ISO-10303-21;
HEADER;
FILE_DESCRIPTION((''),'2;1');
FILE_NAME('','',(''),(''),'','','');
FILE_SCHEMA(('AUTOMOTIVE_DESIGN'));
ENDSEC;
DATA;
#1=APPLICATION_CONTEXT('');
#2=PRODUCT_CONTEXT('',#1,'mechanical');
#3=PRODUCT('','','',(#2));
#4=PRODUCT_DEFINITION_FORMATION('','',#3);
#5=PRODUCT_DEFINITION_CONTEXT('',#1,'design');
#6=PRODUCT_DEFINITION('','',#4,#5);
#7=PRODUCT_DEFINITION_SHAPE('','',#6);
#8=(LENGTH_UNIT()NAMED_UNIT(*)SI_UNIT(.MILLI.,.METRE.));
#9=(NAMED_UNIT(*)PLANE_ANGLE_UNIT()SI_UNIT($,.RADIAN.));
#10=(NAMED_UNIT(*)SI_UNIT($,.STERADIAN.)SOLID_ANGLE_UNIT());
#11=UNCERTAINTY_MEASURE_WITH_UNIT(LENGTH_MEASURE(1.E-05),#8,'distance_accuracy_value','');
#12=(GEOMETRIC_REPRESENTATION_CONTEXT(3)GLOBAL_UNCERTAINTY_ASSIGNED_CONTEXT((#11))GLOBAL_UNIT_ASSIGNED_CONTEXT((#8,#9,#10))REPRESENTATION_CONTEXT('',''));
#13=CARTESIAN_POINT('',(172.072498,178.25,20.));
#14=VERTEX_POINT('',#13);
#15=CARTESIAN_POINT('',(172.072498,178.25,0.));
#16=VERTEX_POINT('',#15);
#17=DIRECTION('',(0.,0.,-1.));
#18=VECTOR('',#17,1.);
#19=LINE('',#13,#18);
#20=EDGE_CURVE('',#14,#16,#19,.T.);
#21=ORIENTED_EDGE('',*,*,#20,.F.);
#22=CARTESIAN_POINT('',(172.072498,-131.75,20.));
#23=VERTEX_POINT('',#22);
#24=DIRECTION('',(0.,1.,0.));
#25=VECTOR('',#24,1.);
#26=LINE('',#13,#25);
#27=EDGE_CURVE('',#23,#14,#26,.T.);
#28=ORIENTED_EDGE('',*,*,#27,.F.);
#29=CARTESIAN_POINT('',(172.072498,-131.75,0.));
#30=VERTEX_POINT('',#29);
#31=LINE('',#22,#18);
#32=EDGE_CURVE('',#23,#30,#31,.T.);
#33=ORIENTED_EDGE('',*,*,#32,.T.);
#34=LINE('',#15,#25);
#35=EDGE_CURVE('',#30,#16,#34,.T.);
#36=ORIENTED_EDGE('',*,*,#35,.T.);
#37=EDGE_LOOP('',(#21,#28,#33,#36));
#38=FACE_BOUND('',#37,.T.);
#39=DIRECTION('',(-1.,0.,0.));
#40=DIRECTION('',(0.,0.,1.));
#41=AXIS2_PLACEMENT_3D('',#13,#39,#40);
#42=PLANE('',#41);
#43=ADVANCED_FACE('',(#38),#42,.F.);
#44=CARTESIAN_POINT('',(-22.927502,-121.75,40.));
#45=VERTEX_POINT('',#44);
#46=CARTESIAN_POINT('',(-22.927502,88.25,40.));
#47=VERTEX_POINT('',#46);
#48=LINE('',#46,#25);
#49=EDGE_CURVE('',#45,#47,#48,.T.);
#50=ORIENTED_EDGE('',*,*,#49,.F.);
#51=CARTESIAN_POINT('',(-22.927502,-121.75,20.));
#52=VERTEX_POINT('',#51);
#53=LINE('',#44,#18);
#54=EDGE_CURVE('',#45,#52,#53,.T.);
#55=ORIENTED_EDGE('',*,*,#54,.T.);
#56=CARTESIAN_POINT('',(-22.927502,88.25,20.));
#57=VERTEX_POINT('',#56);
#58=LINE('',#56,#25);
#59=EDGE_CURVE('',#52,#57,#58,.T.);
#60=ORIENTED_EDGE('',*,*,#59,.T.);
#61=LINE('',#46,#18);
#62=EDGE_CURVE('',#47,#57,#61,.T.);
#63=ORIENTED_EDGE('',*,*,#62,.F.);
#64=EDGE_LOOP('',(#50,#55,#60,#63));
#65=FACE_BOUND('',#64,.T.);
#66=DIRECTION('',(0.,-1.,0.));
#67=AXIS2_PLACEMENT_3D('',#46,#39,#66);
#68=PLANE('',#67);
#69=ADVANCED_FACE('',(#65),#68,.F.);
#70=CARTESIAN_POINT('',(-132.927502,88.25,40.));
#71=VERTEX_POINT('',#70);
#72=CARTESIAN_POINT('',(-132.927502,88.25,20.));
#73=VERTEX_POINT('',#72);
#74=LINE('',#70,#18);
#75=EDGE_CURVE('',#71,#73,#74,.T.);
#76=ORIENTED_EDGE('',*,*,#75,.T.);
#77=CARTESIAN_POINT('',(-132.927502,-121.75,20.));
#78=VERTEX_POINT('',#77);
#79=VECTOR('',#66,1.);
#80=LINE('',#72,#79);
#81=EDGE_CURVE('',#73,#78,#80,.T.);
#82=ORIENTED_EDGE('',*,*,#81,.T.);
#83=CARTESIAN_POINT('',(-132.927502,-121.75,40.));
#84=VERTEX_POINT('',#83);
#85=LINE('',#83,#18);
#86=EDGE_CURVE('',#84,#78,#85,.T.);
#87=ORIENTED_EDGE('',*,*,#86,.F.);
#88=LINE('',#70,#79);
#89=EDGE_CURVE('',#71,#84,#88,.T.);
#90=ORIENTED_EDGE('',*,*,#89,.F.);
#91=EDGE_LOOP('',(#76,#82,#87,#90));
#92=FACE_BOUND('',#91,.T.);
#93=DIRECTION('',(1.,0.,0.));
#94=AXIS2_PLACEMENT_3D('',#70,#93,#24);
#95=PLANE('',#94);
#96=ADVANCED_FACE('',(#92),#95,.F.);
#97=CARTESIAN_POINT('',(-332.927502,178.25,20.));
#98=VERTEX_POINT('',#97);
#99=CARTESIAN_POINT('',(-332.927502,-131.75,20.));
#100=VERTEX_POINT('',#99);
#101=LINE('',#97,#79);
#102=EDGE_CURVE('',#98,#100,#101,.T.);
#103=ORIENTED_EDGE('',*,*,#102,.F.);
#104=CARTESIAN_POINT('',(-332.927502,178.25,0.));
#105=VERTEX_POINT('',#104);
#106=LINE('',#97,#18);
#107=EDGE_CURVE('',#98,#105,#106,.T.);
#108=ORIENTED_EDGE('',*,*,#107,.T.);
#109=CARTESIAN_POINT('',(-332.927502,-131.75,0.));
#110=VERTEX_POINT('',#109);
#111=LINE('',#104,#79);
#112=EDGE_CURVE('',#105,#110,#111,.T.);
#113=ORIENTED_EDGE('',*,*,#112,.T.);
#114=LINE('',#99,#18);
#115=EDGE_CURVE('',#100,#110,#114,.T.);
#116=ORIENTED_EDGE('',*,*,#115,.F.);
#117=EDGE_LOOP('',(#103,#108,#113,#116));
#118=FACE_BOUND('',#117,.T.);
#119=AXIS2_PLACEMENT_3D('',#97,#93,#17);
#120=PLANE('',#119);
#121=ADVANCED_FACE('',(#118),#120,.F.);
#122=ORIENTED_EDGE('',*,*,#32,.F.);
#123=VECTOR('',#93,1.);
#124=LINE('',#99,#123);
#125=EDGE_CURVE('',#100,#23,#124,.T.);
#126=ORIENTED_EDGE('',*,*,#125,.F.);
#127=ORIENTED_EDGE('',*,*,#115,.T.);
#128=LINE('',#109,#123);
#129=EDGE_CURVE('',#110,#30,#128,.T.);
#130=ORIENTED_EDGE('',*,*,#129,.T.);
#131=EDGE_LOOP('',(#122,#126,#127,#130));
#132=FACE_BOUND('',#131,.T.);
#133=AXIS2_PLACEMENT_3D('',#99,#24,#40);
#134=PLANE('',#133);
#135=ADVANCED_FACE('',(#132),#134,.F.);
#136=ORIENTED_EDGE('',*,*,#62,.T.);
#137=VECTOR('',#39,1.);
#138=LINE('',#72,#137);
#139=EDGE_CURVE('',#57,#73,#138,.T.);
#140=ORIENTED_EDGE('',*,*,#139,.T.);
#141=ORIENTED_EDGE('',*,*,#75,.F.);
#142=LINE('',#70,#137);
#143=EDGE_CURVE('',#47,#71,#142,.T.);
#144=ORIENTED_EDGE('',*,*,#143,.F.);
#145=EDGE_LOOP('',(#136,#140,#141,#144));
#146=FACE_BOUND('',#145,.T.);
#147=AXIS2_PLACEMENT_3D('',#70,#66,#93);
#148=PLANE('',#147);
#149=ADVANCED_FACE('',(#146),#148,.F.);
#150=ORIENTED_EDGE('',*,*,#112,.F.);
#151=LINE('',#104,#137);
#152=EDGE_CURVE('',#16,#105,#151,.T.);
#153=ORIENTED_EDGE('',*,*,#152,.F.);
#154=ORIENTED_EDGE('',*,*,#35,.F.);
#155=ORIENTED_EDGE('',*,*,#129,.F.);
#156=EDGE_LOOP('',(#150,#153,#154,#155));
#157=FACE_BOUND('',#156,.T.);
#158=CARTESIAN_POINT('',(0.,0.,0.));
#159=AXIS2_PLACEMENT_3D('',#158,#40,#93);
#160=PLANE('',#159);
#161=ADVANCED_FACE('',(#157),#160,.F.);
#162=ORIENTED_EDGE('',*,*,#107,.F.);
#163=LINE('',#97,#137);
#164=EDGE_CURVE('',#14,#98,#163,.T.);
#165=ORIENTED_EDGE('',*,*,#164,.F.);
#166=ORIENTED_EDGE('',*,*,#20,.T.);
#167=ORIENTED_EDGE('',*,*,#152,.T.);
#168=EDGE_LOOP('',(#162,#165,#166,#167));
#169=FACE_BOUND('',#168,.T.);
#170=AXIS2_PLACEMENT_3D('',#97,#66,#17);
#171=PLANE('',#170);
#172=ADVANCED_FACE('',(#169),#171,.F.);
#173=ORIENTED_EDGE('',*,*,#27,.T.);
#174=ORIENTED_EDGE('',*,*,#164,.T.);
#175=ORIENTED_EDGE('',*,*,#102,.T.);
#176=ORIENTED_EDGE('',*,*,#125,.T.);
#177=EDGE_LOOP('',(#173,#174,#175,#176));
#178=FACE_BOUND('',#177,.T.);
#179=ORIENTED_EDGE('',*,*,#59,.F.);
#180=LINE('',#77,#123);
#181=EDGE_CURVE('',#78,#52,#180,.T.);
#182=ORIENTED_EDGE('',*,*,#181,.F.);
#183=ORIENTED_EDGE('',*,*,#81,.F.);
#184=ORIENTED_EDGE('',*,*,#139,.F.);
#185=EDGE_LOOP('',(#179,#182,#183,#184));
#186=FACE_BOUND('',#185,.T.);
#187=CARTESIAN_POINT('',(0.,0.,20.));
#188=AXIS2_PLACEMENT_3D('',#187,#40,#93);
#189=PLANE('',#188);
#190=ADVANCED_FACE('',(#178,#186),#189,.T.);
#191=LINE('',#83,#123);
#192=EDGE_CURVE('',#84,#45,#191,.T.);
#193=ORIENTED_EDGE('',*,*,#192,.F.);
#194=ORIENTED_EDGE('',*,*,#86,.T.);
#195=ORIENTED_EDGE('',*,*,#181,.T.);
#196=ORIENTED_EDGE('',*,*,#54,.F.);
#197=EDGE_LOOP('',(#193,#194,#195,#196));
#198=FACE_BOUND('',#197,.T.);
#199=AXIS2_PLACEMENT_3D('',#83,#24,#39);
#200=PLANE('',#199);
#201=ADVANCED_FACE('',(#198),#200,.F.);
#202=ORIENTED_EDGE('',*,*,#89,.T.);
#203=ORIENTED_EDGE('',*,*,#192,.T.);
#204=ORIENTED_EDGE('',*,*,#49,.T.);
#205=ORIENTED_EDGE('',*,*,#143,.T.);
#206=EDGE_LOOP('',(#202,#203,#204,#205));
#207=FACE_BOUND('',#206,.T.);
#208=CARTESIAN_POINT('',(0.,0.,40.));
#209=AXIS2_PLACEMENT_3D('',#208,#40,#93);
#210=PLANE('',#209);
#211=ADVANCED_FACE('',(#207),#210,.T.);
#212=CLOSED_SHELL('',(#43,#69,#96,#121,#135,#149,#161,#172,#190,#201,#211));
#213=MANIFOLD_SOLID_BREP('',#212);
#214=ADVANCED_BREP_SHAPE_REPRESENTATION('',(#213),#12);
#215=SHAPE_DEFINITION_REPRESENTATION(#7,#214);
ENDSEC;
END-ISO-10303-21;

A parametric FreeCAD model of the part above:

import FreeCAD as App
import Part
import Sketcher

doc = App.newDocument("Part")
body = doc.addObject("PartDesign::Body", "Body")

# Sketch on XY plane
sketch1 = body.newObject("Sketcher::SketchObject", "Sketch")
sketch1.AttachmentSupport = (doc.getObject("XY_Plane"), [""])
sketch1.MapMode = "FlatFace"
sketch1.addGeometry(Part.LineSegment(App.Vector(-333, 178, 0), App.Vector(-333, -132, 0)), False)
sketch1.addGeometry(Part.LineSegment(App.Vector(-333, -132, 0), App.Vector(172, -132, 0)), False)
sketch1.addGeometry(Part.LineSegment(App.Vector(172, -132, 0), App.Vector(172, 178, 0)), False)
sketch1.addGeometry(Part.LineSegment(App.Vector(172, 178, 0), App.Vector(-333, 178, 0)), False)
sketch1.addConstraint(Sketcher.Constraint("Coincident", 0, 2, 1, 1))
sketch1.addConstraint(Sketcher.Constraint("Coincident", 1, 2, 2, 1))
sketch1.addConstraint(Sketcher.Constraint("Coincident", 2, 2, 3, 1))
sketch1.addConstraint(Sketcher.Constraint("Coincident", 3, 2, 0, 1))
sketch1.addConstraint(Sketcher.Constraint("Vertical", 0))
sketch1.addConstraint(Sketcher.Constraint("Horizontal", 1))
sketch1.addConstraint(Sketcher.Constraint("Vertical", 2))
sketch1.addConstraint(Sketcher.Constraint("Horizontal", 3))
sketch1.addConstraint(Sketcher.Constraint("DistanceX", 1, 1, 1, 2, 505.0))
sketch1.addConstraint(Sketcher.Constraint("DistanceY", 0, 2, 0, 1, 310.0))
sketch1.addConstraint(Sketcher.Constraint("DistanceY", 0, 2, -1, 1, 131.75))
sketch1.addConstraint(Sketcher.Constraint("DistanceX", 0, 2, -1, 1, 332.927502))
pad1 = body.newObject("PartDesign::Pad", "Pad")
pad1.Profile = sketch1
pad1.Length = 20

# Sketch on XY plane
sketch2 = body.newObject("Sketcher::SketchObject", "Sketch001")
sketch2.AttachmentSupport = (doc.getObject("XY_Plane"), [""])
sketch2.MapMode = "FlatFace"
sketch2.AttachmentOffset = App.Placement(App.Vector(0, 0, 20), App.Rotation())
sketch2.addGeometry(Part.LineSegment(App.Vector(-133, 88, 0), App.Vector(-133, -122, 0)), False)
sketch2.addGeometry(Part.LineSegment(App.Vector(-133, -122, 0), App.Vector(-23, -122, 0)), False)
sketch2.addGeometry(Part.LineSegment(App.Vector(-23, -122, 0), App.Vector(-23, 88, 0)), False)
sketch2.addGeometry(Part.LineSegment(App.Vector(-23, 88, 0), App.Vector(-133, 88, 0)), False)
sketch2.addConstraint(Sketcher.Constraint("Coincident", 0, 2, 1, 1))
sketch2.addConstraint(Sketcher.Constraint("Coincident", 1, 2, 2, 1))
sketch2.addConstraint(Sketcher.Constraint("Coincident", 2, 2, 3, 1))
sketch2.addConstraint(Sketcher.Constraint("Coincident", 3, 2, 0, 1))
sketch2.addConstraint(Sketcher.Constraint("Vertical", 0))
sketch2.addConstraint(Sketcher.Constraint("Horizontal", 1))
sketch2.addConstraint(Sketcher.Constraint("Vertical", 2))
sketch2.addConstraint(Sketcher.Constraint("Horizontal", 3))
sketch2.addConstraint(Sketcher.Constraint("DistanceX", 1, 1, 1, 2, 110.0))
sketch2.addConstraint(Sketcher.Constraint("DistanceY", 0, 2, 0, 1, 210.0))
sketch2.addConstraint(Sketcher.Constraint("DistanceY", 0, 2, -1, 1, 121.75))
sketch2.addConstraint(Sketcher.Constraint("DistanceX", 0, 2, -1, 1, 132.927502))
pad2 = body.newObject("PartDesign::Pad", "Pad001")
pad2.Profile = sketch2
pad2.Length = 20

doc.recompute()
